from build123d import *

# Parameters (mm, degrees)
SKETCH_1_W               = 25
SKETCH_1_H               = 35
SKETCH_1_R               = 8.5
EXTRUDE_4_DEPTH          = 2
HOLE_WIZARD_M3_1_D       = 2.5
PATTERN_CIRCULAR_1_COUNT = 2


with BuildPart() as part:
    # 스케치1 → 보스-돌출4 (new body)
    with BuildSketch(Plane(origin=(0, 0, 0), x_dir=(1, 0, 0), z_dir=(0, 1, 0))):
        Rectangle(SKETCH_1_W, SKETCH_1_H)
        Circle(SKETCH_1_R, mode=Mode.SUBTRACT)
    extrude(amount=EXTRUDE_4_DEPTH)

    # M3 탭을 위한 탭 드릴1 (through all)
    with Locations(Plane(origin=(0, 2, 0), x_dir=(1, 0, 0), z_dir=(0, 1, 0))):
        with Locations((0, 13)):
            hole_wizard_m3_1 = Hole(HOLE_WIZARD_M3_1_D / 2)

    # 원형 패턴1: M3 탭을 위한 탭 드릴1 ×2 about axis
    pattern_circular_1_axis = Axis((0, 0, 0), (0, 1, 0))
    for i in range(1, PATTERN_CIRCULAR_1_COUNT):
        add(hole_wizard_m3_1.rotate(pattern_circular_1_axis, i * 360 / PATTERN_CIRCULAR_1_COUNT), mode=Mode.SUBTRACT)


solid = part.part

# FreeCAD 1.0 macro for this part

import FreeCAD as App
import Part
import Sketcher
Q = App.Units.Quantity

doc = App.newDocument("Part")
body = doc.addObject("PartDesign::Body", "Body")

sketch1 = body.newObject("Sketcher::SketchObject", "Sketch")
sketch1.AttachmentSupport = (doc.getObject("XZ_Plane"), [""])
sketch1.MapMode = "FlatFace"
sketch1.addGeometry([
    Part.LineSegment(App.Vector(-12.5, -17.5, 0), App.Vector(-12.5, 17.5, 0)),
    Part.LineSegment(App.Vector(-12.5, 17.5, 0), App.Vector(12.5, 17.5, 0)),
    Part.LineSegment(App.Vector(12.5, 17.5, 0), App.Vector(12.5, -17.5, 0)),
    Part.LineSegment(App.Vector(12.5, -17.5, 0), App.Vector(-12.5, -17.5, 0)),
    Part.Circle(App.Vector(0, 0, 0), App.Vector(0, 0, 1), 8.5),
], False)
sketch1.addConstraint([
    Sketcher.Constraint("Coincident", 0, 2, 1, 1),
    Sketcher.Constraint("Coincident", 1, 2, 2, 1),
    Sketcher.Constraint("Coincident", 2, 2, 3, 1),
    Sketcher.Constraint("Coincident", 3, 2, 0, 1),
    Sketcher.Constraint("Vertical", 0),
    Sketcher.Constraint("Horizontal", 1),
    Sketcher.Constraint("Vertical", 2),
    Sketcher.Constraint("Horizontal", 3),
    Sketcher.Constraint("Coincident", 4, 3, -1, 1),
    Sketcher.Constraint("Symmetric", 0, 2, 2, 2, -1, 1),
    Sketcher.Constraint("Diameter", 4, Q("17 mm")),
    Sketcher.Constraint("DistanceX", 1, 1, 1, 2, Q("25 mm")),
    Sketcher.Constraint("DistanceY", 0, 1, 0, 2, Q("35 mm")),
])
pad1 = body.newObject("PartDesign::Pad", "Pad")
pad1.Profile = sketch1
pad1.Length = 2
pad1.Reversed = True

sketch2 = body.newObject("Sketcher::SketchObject", "Sketch001")
sketch2.AttachmentSupport = (doc.getObject("XZ_Plane"), [""])
sketch2.MapMode = "FlatFace"
sketch2.AttachmentOffset = App.Placement(App.Vector(0, 0, -2), App.Rotation())
sketch2.addGeometry(Part.Circle(App.Vector(0, -13, 0), App.Vector(0, 0, 1), 1.25), False)
sketch2.addConstraint([
    Sketcher.Constraint("PointOnObject", 0, 3, -2),
    Sketcher.Constraint("Diameter", 0, Q("2.5 mm")),
    Sketcher.Constraint("DistanceY", 0, 3, -1, 1, Q("13 mm")),
])
doc.recompute()
hole = body.newObject("PartDesign::Hole", "Hole")
hole.Profile = sketch2
hole.ThreadType = "None"
hole.Diameter = 2.5
hole.DepthType = "ThroughAll"
hole.Reversed = True
doc.recompute()

polarpattern = body.newObject("PartDesign::PolarPattern", "PolarPattern")
polarpattern.Originals = [hole]
polarpattern.Axis = (doc.getObject("Y_Axis"), [""])
polarpattern.Angle = 360
polarpattern.Occurrences = 2
body.Tip = polarpattern

doc.recompute()
